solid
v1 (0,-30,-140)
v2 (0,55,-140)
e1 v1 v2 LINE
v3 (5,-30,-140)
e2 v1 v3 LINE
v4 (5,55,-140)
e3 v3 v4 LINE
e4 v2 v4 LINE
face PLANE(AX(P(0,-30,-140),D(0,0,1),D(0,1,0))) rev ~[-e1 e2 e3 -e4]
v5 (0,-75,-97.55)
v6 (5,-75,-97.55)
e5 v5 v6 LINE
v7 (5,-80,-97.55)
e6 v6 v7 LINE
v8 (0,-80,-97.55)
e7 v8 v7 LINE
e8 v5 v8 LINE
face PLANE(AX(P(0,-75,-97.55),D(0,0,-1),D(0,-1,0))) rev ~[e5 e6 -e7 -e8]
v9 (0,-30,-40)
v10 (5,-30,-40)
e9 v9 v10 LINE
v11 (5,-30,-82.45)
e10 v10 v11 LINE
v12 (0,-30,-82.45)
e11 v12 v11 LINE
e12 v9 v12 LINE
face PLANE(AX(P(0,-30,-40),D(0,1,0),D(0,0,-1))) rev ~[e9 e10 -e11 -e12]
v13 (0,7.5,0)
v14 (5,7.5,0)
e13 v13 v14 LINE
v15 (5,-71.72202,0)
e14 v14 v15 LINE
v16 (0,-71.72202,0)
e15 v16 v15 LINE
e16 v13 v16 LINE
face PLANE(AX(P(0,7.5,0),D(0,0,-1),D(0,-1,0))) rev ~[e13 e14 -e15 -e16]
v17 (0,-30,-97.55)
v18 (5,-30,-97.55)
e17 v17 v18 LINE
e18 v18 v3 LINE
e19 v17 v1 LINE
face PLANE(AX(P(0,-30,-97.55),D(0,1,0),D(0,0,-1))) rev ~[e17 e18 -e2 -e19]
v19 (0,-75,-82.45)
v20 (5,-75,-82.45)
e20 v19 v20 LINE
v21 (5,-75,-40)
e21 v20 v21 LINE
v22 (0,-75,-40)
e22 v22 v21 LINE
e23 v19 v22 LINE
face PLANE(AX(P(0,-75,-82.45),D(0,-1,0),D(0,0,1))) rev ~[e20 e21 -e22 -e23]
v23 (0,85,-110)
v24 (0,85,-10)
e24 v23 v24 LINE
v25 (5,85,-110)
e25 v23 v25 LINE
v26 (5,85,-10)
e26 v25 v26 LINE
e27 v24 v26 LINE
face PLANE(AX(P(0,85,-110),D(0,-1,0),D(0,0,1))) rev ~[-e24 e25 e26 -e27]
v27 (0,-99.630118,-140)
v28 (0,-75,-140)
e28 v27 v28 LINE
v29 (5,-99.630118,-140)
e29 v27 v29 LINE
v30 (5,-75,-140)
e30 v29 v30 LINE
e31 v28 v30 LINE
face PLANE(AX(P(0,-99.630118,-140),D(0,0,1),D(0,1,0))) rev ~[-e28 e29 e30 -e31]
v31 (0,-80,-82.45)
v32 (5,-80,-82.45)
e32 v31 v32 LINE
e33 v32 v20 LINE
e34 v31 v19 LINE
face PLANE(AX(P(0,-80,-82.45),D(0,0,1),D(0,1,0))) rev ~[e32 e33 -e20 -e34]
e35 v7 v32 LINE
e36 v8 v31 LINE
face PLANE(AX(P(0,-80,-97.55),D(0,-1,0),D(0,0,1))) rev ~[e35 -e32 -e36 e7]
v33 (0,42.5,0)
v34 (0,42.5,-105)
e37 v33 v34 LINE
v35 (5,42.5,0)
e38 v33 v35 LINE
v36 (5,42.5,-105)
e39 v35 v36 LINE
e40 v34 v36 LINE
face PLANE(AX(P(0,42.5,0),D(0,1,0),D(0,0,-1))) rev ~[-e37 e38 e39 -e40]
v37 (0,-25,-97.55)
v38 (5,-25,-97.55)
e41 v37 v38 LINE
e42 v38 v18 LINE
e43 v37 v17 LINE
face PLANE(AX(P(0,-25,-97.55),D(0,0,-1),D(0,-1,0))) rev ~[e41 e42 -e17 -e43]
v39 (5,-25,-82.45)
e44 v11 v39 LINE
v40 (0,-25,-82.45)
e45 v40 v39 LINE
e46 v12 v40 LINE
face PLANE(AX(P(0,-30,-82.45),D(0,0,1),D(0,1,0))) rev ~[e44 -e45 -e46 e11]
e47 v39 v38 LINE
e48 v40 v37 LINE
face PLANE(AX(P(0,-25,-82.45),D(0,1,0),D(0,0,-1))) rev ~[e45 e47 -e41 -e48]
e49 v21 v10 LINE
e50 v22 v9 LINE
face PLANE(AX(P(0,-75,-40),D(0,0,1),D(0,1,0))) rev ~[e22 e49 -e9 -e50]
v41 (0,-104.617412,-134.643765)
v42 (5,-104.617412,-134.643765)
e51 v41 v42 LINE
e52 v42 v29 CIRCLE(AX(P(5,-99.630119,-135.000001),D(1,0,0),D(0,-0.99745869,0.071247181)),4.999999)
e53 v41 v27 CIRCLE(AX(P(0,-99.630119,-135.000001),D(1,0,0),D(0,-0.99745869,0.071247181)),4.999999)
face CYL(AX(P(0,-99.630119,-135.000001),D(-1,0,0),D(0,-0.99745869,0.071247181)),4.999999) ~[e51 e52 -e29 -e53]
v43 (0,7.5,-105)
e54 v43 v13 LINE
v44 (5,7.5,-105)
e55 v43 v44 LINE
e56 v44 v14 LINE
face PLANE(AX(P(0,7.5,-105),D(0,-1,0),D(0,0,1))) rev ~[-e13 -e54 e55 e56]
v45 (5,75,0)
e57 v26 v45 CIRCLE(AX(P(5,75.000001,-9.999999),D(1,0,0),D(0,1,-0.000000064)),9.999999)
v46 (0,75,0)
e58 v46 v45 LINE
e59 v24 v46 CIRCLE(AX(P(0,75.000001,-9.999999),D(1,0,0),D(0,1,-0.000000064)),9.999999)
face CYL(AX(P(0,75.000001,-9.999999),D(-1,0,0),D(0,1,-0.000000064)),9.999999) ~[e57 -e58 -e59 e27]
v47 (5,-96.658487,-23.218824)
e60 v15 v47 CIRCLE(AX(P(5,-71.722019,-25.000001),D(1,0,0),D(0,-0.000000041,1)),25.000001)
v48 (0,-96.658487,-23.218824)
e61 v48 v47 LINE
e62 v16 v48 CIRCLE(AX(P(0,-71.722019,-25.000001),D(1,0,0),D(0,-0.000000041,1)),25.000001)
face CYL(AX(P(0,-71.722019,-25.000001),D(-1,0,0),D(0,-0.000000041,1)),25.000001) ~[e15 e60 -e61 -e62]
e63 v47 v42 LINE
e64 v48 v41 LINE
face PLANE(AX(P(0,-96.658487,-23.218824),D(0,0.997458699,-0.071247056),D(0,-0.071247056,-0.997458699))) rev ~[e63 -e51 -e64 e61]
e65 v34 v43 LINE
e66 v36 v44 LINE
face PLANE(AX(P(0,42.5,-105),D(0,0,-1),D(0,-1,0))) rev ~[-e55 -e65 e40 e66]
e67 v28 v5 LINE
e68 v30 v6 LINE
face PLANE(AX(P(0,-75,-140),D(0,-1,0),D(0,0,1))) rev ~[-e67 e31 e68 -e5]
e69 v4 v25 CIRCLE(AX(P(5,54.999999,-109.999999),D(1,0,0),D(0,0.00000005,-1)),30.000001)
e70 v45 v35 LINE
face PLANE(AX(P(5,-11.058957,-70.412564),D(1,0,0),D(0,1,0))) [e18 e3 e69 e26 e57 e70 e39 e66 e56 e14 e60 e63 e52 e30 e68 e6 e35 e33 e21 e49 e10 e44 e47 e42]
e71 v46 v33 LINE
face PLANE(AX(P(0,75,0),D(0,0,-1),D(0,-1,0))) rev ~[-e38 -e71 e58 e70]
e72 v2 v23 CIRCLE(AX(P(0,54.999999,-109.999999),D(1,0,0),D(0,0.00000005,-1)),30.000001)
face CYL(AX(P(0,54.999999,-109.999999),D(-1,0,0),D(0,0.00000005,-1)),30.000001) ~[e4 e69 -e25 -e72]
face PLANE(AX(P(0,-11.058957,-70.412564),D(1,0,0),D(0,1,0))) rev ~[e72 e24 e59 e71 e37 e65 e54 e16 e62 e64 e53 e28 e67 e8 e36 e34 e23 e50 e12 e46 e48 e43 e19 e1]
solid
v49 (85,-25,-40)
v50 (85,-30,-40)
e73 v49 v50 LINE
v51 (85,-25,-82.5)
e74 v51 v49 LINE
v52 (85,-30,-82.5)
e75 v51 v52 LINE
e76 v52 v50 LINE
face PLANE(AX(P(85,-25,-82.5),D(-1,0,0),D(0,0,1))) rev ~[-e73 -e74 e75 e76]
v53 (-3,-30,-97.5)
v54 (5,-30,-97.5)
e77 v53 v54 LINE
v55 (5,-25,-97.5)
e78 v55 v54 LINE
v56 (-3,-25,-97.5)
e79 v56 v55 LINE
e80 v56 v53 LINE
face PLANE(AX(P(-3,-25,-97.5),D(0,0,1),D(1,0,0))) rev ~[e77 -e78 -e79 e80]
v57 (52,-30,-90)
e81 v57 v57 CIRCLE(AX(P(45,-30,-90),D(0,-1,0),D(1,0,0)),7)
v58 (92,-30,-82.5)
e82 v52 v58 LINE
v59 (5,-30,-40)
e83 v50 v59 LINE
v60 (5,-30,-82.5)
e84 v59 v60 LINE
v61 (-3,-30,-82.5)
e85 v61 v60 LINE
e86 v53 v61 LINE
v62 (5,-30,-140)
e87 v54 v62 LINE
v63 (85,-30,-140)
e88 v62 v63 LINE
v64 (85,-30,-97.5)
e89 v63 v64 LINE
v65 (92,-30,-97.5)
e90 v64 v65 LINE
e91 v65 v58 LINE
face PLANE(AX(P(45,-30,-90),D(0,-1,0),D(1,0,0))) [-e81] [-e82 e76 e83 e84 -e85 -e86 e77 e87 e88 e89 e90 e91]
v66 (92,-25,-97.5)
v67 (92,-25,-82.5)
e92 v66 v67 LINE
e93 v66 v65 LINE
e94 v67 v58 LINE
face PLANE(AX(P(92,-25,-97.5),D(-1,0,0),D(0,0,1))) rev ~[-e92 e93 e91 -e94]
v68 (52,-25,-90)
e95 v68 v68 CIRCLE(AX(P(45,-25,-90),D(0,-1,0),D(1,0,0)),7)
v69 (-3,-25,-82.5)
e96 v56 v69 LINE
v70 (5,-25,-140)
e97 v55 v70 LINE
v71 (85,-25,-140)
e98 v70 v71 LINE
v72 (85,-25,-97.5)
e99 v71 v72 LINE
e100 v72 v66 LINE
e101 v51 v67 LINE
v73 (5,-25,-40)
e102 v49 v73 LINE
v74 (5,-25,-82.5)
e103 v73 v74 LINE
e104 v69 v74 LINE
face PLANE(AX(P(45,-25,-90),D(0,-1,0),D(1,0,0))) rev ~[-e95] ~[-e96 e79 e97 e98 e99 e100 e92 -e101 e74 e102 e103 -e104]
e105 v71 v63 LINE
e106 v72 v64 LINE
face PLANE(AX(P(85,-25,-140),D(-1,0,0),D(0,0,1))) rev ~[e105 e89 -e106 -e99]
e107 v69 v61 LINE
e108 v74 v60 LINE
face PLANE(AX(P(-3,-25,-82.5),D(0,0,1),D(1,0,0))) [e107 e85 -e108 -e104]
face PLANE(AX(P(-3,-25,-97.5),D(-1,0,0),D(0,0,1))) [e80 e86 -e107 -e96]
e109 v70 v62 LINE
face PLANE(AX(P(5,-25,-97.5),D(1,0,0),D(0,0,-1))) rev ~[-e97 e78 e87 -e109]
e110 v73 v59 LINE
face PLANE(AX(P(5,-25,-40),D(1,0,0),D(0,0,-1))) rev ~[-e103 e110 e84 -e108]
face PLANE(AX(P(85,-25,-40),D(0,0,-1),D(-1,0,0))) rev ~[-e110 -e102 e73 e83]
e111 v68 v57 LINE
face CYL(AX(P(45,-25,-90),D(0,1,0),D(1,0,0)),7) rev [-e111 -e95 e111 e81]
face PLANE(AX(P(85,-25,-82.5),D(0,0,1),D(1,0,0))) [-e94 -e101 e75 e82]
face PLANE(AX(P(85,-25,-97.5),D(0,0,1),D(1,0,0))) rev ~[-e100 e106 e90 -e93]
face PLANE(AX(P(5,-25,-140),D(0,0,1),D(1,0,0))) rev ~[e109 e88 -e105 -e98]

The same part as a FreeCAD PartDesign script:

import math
import FreeCAD as App
import Part
import Sketcher


def add_polygon(sketch, points):
    """Adds a closed chain of lines whose ends are joined by coincident constraints."""
    first, n = sketch.GeometryCount, len(points)
    for a, b in zip(points, points[1:] + points[:1]):
        sketch.addGeometry(Part.LineSegment(App.Vector(*a, 0), App.Vector(*b, 0)), False)
    for i in range(n):
        sketch.addConstraint(Sketcher.Constraint("Coincident", first + i, 2, first + (i + 1) % n, 1))

doc = App.newDocument("Part")
body = doc.addObject("PartDesign::Body", "Body")

# Sketch on YZ plane
sketch1 = doc.addObject("Sketcher::SketchObject", "Sketch")
body.addObject(sketch1)
sketch1.AttachmentSupport = (doc.YZ_Plane, [""])
sketch1.MapMode = "FlatFace"
sketch1.addGeometry(Part.LineSegment(App.Vector(7.5, -105, 0), App.Vector(7.5, 0, 0)), False)
sketch1.addGeometry(Part.LineSegment(App.Vector(7.5, 0, 0), App.Vector(-71.72202, 0, 0)), False)
sketch1.addGeometry(Part.ArcOfCircle(Part.Circle(App.Vector(-71.722019, -25.000001, 0), App.Vector(0, 0, 1), 25.000001), math.radians(90.000002), math.radians(175.914383)), False)
sketch1.addGeometry(Part.LineSegment(App.Vector(-96.658487, -23.218824, 0), App.Vector(-104.617412, -134.643765, 0)), False)
sketch1.addGeometry(Part.ArcOfCircle(Part.Circle(App.Vector(-99.630119, -135.000001, 0), App.Vector(0, 0, 1), 4.999999), math.radians(175.914376), math.radians(270.000016)), False)
sketch1.addGeometry(Part.LineSegment(App.Vector(-99.630118, -140, 0), App.Vector(-75, -140, 0)), False)
sketch1.addGeometry(Part.LineSegment(App.Vector(-75, -140, 0), App.Vector(-75, -97.55, 0)), False)
sketch1.addGeometry(Part.LineSegment(App.Vector(-75, -97.55, 0), App.Vector(-80, -97.55, 0)), False)
sketch1.addGeometry(Part.LineSegment(App.Vector(-80, -97.55, 0), App.Vector(-80, -82.45, 0)), False)
sketch1.addGeometry(Part.LineSegment(App.Vector(-80, -82.45, 0), App.Vector(-75, -82.45, 0)), False)
sketch1.addGeometry(Part.LineSegment(App.Vector(-75, -82.45, 0), App.Vector(-75, -40, 0)), False)
sketch1.addGeometry(Part.LineSegment(App.Vector(-75, -40, 0), App.Vector(-30, -40, 0)), False)
sketch1.addGeometry(Part.LineSegment(App.Vector(-30, -40, 0), App.Vector(-30, -82.45, 0)), False)
sketch1.addGeometry(Part.LineSegment(App.Vector(-30, -82.45, 0), App.Vector(-25, -82.45, 0)), False)
sketch1.addGeometry(Part.LineSegment(App.Vector(-25, -82.45, 0), App.Vector(-25, -97.55, 0)), False)
sketch1.addGeometry(Part.LineSegment(App.Vector(-25, -97.55, 0), App.Vector(-30, -97.55, 0)), False)
sketch1.addGeometry(Part.LineSegment(App.Vector(-30, -97.55, 0), App.Vector(-30, -140, 0)), False)
sketch1.addGeometry(Part.LineSegment(App.Vector(-30, -140, 0), App.Vector(55, -140, 0)), False)
sketch1.addGeometry(Part.ArcOfCircle(Part.Circle(App.Vector(54.999999, -109.999999, 0), App.Vector(0, 0, 1), 30.000001), math.radians(-89.999997), math.radians(-0.000003)), False)
sketch1.addGeometry(Part.LineSegment(App.Vector(85, -110, 0), App.Vector(85, -10, 0)), False)
sketch1.addGeometry(Part.ArcOfCircle(Part.Circle(App.Vector(75.000001, -9.999999, 0), App.Vector(0, 0, 1), 9.999999), math.radians(-0.000004), math.radians(90.000004)), False)
sketch1.addGeometry(Part.LineSegment(App.Vector(75, 0, 0), App.Vector(42.5, 0, 0)), False)
sketch1.addGeometry(Part.LineSegment(App.Vector(42.5, 0, 0), App.Vector(42.5, -105, 0)), False)
sketch1.addGeometry(Part.LineSegment(App.Vector(42.5, -105, 0), App.Vector(7.5, -105, 0)), False)
sketch1.addConstraint(Sketcher.Constraint("Coincident", 0, 2, 1, 1))
sketch1.addConstraint(Sketcher.Constraint("Tangent", 1, 2, 2, 1))
sketch1.addConstraint(Sketcher.Constraint("Tangent", 2, 2, 3, 1))
sketch1.addConstraint(Sketcher.Constraint("Tangent", 3, 2, 4, 1))
sketch1.addConstraint(Sketcher.Constraint("Tangent", 4, 2, 5, 1))
sketch1.addConstraint(Sketcher.Constraint("Coincident", 5, 2, 6, 1))
sketch1.addConstraint(Sketcher.Constraint("Coincident", 6, 2, 7, 1))
sketch1.addConstraint(Sketcher.Constraint("Coincident", 7, 2, 8, 1))
sketch1.addConstraint(Sketcher.Constraint("Coincident", 8, 2, 9, 1))
sketch1.addConstraint(Sketcher.Constraint("Coincident", 9, 2, 10, 1))
sketch1.addConstraint(Sketcher.Constraint("Coincident", 10, 2, 11, 1))
sketch1.addConstraint(Sketcher.Constraint("Coincident", 11, 2, 12, 1))
sketch1.addConstraint(Sketcher.Constraint("Coincident", 12, 2, 13, 1))
sketch1.addConstraint(Sketcher.Constraint("Coincident", 13, 2, 14, 1))
sketch1.addConstraint(Sketcher.Constraint("Coincident", 14, 2, 15, 1))
sketch1.addConstraint(Sketcher.Constraint("Coincident", 15, 2, 16, 1))
sketch1.addConstraint(Sketcher.Constraint("Coincident", 16, 2, 17, 1))
sketch1.addConstraint(Sketcher.Constraint("Tangent", 17, 2, 18, 1))
sketch1.addConstraint(Sketcher.Constraint("Tangent", 18, 2, 19, 1))
sketch1.addConstraint(Sketcher.Constraint("Tangent", 19, 2, 20, 1))
sketch1.addConstraint(Sketcher.Constraint("Tangent", 20, 2, 21, 1))
sketch1.addConstraint(Sketcher.Constraint("Coincident", 21, 2, 22, 1))
sketch1.addConstraint(Sketcher.Constraint("Coincident", 22, 2, 23, 1))
sketch1.addConstraint(Sketcher.Constraint("Coincident", 23, 2, 0, 1))
sketch1.addConstraint(Sketcher.Constraint("Vertical", 0))
sketch1.addConstraint(Sketcher.Constraint("Horizontal", 1))
sketch1.addConstraint(Sketcher.Constraint("Horizontal", 5))
sketch1.addConstraint(Sketcher.Constraint("Vertical", 6))
sketch1.addConstraint(Sketcher.Constraint("Horizontal", 7))
sketch1.addConstraint(Sketcher.Constraint("Vertical", 8))
sketch1.addConstraint(Sketcher.Constraint("Horizontal", 9))
sketch1.addConstraint(Sketcher.Constraint("Vertical", 10))
sketch1.addConstraint(Sketcher.Constraint("Horizontal", 11))
sketch1.addConstraint(Sketcher.Constraint("Vertical", 12))
sketch1.addConstraint(Sketcher.Constraint("Horizontal", 13))
sketch1.addConstraint(Sketcher.Constraint("Vertical", 14))
sketch1.addConstraint(Sketcher.Constraint("Horizontal", 15))
sketch1.addConstraint(Sketcher.Constraint("Vertical", 16))
sketch1.addConstraint(Sketcher.Constraint("Horizontal", 17))
sketch1.addConstraint(Sketcher.Constraint("Vertical", 19))
sketch1.addConstraint(Sketcher.Constraint("Horizontal", 21))
sketch1.addConstraint(Sketcher.Constraint("Vertical", 22))
sketch1.addConstraint(Sketcher.Constraint("Horizontal", 23))
sketch1.addConstraint(Sketcher.Constraint("PointOnObject", 0, 2, -1))
sketch1.addConstraint(Sketcher.Constraint("PointOnObject", 20, 2, -1))
sketch1.addConstraint(Sketcher.Constraint("Horizontal", 9, 2, 12, 2))
sketch1.addConstraint(Sketcher.Constraint("Horizontal", 7, 2, 14, 2))
sketch1.addConstraint(Sketcher.Constraint("Horizontal", 5, 2, 16, 2))
sketch1.addConstraint(Sketcher.Constraint("Vertical", 6, 2, 9, 2))
sketch1.addConstraint(Sketcher.Constraint("Vertical", 12, 2, 15, 2))
sketch1.addConstraint(Sketcher.Constraint("Equal", 9, 13))
sketch1.addConstraint(Sketcher.Constraint("Equal", 6, 10))
sketch1.addConstraint(Sketcher.Constraint("Radius", 2, 25.000001))
sketch1.addConstraint(Sketcher.Constraint("Radius", 4, 4.999999))
sketch1.addConstraint(Sketcher.Constraint("Radius", 18, 30.000001))
sketch1.addConstraint(Sketcher.Constraint("Radius", 20, 9.999999))
sketch1.addConstraint(Sketcher.Constraint("DistanceX", 7, 2, 7, 1, 5.0))
sketch1.addConstraint(Sketcher.Constraint("DistanceX", 11, 1, 11, 2, 45.0))
sketch1.addConstraint(Sketcher.Constraint("DistanceX", 17, 1, 17, 2, 85.0))
sketch1.addConstraint(Sketcher.Constraint("DistanceX", 23, 2, 23, 1, 35.0))
sketch1.addConstraint(Sketcher.Constraint("DistanceY", 0, 1, 0, 2, 105.0))
sketch1.addConstraint(Sketcher.Constraint("DistanceY", 19, 1, 19, 2, 100.0))
sketch1.addConstraint(Sketcher.Constraint("DistanceX", 21, 2, 21, 1, 32.5))
sketch1.addConstraint(Sketcher.Constraint("DistanceY", 8, 1, 8, 2, 15.1))
sketch1.addConstraint(Sketcher.Constraint("DistanceX", -1, 1, 18, 3, 54.999999))
sketch1.addConstraint(Sketcher.Constraint("DistanceY", 10, 2, -1, 1, 40.0))
sketch1.addConstraint(Sketcher.Constraint("DistanceX", 1, 2, 1, 1, 79.22202))
sketch1.addConstraint(Sketcher.Constraint("DistanceX", 4, 3, 2, 3, 27.9081))
pad1 = doc.addObject("PartDesign::Pad", "Pad")
body.addObject(pad1)
pad1.Profile = sketch1
pad1.Length = 5
body2 = doc.addObject("PartDesign::Body", "Body001")

# Sketch on XZ plane
sketch2 = doc.addObject("Sketcher::SketchObject", "Sketch001")
body2.addObject(sketch2)
sketch2.AttachmentSupport = (doc.getObject("XZ_Plane001"), [""])
sketch2.MapMode = "FlatFace"
sketch2.AttachmentOffset = App.Placement(App.Vector(0, 0, 25), App.Rotation())
add_polygon(sketch2, [(85, -40), (5, -40), (5, -82.5), (-3, -82.5), (-3, -97.5), (5, -97.5), (5, -140), (85, -140), (85, -97.5), (92, -97.5), (92, -82.5), (85, -82.5)])  # lines 0-11
sketch2.addGeometry(Part.Circle(App.Vector(45, -90, 0), App.Vector(0, 0, 1), 7), False)  # 12
sketch2.addConstraint(Sketcher.Constraint("Horizontal", 0))
sketch2.addConstraint(Sketcher.Constraint("Vertical", 1))
sketch2.addConstraint(Sketcher.Constraint("Horizontal", 2))
sketch2.addConstraint(Sketcher.Constraint("Vertical", 3))
sketch2.addConstraint(Sketcher.Constraint("Horizontal", 4))
sketch2.addConstraint(Sketcher.Constraint("Vertical", 5))
sketch2.addConstraint(Sketcher.Constraint("Horizontal", 6))
sketch2.addConstraint(Sketcher.Constraint("Vertical", 7))
sketch2.addConstraint(Sketcher.Constraint("Horizontal", 8))
sketch2.addConstraint(Sketcher.Constraint("Vertical", 9))
sketch2.addConstraint(Sketcher.Constraint("Horizontal", 10))
sketch2.addConstraint(Sketcher.Constraint("Vertical", 11))
sketch2.addConstraint(Sketcher.Constraint("Horizontal", 4, 2, 7, 2))
sketch2.addConstraint(Sketcher.Constraint("Horizontal", 2, 2, 9, 2))
sketch2.addConstraint(Sketcher.Constraint("Vertical", 1, 2, 4, 2))
sketch2.addConstraint(Sketcher.Constraint("Vertical", 7, 2, 10, 2))
sketch2.addConstraint(Sketcher.Constraint("Equal", 1, 5))
sketch2.addConstraint(Sketcher.Constraint("Diameter", 12, 14.0))
sketch2.addConstraint(Sketcher.Constraint("DistanceX", 0, 2, 0, 1, 80.0))
sketch2.addConstraint(Sketcher.Constraint("DistanceX", 2, 2, 2, 1, 8.0))
sketch2.addConstraint(Sketcher.Constraint("DistanceX", 8, 1, 8, 2, 7.0))
sketch2.addConstraint(Sketcher.Constraint("DistanceY", 3, 2, 3, 1, 15.0))
sketch2.addConstraint(Sketcher.Constraint("DistanceY", 1, 2, 1, 1, 42.5))
sketch2.addConstraint(Sketcher.Constraint("DistanceX", -1, 1, 12, 3, 45.0))
sketch2.addConstraint(Sketcher.Constraint("DistanceY", 12, 3, -1, 1, 90.0))
sketch2.addConstraint(Sketcher.Constraint("DistanceX", -1, 1, 0, 2, 5.0))
sketch2.addConstraint(Sketcher.Constraint("DistanceY", 0, 2, -1, 1, 40.0))
pad2 = doc.addObject("PartDesign::Pad", "Pad001")
body2.addObject(pad2)
pad2.Profile = sketch2
pad2.Length = 5

doc.recompute()
